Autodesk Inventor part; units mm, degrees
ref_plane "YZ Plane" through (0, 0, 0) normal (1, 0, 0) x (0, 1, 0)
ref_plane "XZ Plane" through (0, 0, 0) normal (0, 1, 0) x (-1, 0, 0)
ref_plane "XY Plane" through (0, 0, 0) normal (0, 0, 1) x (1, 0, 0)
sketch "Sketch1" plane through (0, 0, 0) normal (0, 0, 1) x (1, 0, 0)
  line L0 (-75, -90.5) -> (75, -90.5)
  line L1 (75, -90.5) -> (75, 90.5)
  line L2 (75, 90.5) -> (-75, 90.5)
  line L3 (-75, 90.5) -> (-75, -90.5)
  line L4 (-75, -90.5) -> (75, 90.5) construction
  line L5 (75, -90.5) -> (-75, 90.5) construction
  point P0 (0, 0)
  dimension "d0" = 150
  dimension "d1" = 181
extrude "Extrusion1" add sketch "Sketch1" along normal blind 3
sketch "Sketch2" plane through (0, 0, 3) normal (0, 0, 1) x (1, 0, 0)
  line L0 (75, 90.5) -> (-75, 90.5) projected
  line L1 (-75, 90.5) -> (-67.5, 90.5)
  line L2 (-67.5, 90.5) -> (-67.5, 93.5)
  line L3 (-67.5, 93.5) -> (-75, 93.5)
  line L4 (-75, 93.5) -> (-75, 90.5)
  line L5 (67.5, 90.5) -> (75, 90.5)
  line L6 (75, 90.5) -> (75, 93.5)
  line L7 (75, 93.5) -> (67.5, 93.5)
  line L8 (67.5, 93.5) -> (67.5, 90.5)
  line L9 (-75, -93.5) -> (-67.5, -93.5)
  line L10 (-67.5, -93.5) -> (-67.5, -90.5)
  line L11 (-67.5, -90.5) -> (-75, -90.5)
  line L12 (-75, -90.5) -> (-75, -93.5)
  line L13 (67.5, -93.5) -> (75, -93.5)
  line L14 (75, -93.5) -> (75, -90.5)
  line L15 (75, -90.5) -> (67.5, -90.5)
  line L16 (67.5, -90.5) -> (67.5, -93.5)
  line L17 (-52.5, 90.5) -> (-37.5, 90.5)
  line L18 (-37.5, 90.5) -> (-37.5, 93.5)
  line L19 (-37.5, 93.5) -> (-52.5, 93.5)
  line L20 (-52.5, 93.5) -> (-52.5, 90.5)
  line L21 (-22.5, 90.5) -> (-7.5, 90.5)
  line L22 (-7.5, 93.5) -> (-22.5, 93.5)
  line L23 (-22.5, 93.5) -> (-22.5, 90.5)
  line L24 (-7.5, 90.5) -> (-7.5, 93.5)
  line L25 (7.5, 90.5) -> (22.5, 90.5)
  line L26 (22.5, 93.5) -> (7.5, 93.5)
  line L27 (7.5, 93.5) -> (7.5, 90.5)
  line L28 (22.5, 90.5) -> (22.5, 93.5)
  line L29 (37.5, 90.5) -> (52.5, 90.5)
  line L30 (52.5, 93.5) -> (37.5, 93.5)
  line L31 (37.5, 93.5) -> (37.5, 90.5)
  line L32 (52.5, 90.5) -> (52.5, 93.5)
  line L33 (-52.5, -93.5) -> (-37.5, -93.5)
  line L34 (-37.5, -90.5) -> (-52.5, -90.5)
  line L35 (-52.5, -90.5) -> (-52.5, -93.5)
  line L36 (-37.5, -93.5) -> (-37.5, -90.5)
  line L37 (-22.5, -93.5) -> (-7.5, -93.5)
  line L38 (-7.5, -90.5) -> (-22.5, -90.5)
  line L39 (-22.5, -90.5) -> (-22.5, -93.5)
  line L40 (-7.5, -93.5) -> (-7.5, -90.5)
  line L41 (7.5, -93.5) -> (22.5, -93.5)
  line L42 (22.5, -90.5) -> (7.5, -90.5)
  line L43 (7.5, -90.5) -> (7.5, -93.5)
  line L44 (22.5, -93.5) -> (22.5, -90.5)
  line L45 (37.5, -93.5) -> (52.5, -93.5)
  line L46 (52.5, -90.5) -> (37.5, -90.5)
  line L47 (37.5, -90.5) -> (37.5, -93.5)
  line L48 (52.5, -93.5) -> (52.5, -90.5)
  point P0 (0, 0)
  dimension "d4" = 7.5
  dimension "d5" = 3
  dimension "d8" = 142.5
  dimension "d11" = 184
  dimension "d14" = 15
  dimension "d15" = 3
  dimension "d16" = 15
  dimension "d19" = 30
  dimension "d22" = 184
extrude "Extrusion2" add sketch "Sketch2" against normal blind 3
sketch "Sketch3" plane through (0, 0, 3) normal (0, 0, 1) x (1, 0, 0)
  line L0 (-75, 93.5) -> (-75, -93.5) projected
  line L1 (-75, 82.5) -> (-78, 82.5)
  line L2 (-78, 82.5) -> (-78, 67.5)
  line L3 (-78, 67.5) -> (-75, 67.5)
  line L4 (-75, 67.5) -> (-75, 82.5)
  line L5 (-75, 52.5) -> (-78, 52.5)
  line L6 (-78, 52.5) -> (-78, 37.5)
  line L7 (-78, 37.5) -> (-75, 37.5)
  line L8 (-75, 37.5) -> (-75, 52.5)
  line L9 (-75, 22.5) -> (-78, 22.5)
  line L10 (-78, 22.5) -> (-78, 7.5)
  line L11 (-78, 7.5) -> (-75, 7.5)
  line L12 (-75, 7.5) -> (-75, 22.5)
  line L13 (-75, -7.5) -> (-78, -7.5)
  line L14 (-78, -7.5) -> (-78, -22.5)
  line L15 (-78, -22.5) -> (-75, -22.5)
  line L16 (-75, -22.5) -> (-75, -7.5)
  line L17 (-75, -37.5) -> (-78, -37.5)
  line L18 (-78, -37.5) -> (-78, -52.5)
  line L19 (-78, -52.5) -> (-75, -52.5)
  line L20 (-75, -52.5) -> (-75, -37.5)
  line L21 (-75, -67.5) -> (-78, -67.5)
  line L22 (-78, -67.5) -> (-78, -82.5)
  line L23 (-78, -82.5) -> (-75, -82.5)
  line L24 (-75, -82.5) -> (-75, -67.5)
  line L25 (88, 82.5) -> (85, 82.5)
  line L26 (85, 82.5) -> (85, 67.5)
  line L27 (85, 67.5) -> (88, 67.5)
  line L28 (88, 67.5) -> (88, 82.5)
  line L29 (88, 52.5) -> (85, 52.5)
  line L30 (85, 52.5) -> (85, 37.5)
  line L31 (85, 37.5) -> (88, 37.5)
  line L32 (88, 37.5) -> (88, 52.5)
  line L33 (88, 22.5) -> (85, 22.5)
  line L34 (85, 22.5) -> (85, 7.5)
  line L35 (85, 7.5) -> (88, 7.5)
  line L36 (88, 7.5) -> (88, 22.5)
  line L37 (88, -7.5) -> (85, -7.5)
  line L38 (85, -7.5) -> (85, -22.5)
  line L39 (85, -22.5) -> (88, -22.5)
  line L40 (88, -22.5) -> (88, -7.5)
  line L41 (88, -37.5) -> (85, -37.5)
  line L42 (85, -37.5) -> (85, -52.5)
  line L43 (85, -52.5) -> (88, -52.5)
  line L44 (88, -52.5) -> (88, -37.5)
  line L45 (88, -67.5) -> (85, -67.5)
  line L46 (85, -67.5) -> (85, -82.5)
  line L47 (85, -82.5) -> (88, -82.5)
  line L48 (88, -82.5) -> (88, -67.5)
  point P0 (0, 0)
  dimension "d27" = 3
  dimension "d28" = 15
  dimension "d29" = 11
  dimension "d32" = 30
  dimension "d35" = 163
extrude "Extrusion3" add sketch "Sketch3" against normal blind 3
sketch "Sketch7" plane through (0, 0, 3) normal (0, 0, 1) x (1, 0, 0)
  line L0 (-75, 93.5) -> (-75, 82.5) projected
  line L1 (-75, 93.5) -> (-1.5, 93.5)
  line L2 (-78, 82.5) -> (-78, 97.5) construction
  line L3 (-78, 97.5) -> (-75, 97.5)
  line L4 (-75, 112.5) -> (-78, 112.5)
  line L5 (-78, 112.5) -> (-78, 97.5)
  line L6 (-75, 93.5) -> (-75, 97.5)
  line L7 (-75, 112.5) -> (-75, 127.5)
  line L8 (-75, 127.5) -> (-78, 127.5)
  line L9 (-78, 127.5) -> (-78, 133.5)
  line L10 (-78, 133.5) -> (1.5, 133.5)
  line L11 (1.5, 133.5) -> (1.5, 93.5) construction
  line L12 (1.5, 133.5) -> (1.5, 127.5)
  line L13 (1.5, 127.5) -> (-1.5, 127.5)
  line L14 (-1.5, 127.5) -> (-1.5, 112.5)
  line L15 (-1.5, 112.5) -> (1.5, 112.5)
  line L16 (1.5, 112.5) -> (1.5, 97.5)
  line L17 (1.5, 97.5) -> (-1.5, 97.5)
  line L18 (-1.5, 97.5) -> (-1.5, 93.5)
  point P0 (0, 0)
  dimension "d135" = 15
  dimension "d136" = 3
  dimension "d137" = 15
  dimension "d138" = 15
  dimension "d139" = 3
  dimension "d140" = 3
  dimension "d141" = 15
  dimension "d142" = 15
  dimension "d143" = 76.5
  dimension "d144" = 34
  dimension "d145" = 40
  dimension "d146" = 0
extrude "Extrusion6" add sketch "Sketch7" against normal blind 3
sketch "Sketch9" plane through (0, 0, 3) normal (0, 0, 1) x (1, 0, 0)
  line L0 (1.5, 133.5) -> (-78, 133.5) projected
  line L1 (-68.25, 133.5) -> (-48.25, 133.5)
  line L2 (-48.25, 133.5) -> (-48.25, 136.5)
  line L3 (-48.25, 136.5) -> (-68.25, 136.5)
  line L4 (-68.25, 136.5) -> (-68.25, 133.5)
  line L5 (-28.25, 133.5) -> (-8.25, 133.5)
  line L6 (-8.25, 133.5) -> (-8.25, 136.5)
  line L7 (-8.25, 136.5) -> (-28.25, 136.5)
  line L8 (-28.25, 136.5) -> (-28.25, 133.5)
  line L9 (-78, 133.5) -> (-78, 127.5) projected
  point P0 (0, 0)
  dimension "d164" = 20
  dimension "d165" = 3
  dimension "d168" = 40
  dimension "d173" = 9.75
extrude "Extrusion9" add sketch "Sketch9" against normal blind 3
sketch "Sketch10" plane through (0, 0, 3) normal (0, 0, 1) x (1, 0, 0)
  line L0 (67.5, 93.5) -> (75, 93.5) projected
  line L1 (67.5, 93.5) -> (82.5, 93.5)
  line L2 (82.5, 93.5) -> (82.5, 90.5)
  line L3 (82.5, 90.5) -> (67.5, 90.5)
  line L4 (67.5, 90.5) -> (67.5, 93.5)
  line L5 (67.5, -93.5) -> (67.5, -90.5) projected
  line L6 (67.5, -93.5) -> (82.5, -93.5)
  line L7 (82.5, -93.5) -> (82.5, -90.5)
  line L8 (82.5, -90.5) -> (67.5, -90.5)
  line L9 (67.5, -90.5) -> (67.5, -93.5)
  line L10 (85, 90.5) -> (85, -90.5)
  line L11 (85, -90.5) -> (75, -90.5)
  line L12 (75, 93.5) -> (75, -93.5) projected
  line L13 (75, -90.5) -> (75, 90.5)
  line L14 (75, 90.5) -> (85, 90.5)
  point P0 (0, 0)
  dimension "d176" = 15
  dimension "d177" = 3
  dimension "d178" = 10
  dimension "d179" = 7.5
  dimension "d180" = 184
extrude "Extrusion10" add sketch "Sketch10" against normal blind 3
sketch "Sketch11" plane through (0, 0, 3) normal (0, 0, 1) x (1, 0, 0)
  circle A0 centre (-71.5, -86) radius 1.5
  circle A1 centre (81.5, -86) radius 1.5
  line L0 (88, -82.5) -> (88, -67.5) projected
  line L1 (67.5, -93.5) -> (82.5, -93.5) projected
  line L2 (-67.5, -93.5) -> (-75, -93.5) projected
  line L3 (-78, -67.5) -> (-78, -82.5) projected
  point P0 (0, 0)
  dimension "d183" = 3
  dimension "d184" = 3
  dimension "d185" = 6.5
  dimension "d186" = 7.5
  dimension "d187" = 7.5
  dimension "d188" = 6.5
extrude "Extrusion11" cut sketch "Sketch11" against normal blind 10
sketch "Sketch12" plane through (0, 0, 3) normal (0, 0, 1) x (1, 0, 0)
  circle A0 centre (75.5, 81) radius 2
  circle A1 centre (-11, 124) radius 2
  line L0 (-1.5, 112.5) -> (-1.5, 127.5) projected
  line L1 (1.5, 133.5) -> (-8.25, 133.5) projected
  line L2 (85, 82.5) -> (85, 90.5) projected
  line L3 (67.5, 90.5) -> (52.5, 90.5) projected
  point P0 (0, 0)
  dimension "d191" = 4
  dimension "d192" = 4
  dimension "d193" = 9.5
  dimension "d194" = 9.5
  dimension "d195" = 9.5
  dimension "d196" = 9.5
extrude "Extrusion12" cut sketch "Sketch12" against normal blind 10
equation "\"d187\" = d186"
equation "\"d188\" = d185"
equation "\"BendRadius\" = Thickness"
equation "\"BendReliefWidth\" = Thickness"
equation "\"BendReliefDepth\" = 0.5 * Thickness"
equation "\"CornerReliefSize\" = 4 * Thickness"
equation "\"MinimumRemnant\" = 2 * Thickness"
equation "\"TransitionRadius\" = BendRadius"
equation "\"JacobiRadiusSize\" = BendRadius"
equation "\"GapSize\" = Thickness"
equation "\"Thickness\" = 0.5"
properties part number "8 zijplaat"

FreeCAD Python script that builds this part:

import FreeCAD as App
import Part
import Sketcher
from FreeCAD import Vector

doc = App.newDocument("Part")
body = doc.addObject("PartDesign::Body", "Body")
body.AllowCompound = True

sketch1 = body.newObject("Sketcher::SketchObject", "Sketch")
sketch1.AttachmentSupport = (doc.getObject("XY_Plane"), [""])
sketch1.MapMode = "FlatFace"
sketch1.addGeometry([
    Part.LineSegment(Vector(-75, 90.5, 0), Vector(-75, -90.5, 0)),
    Part.LineSegment(Vector(-75, -90.5, 0), Vector(75, -90.5, 0)),
    Part.LineSegment(Vector(75, -90.5, 0), Vector(75, 90.5, 0)),
    Part.LineSegment(Vector(75, 90.5, 0), Vector(-75, 90.5, 0)),
], False)
sketch1.addConstraint([
    Sketcher.Constraint("Coincident", 0, 2, 1, 1),
    Sketcher.Constraint("Coincident", 1, 2, 2, 1),
    Sketcher.Constraint("Coincident", 2, 2, 3, 1),
    Sketcher.Constraint("Coincident", 3, 2, 0, 1),
    Sketcher.Constraint("Vertical", 0),
    Sketcher.Constraint("Horizontal", 1),
    Sketcher.Constraint("Vertical", 2),
    Sketcher.Constraint("Horizontal", 3),
    Sketcher.Constraint("Symmetric", 0, 2, 2, 2, -1, 1),
    Sketcher.Constraint("DistanceX", 1, 1, 1, 2, 150.0),
    Sketcher.Constraint("DistanceY", 0, 2, 0, 1, 181.0),
])
pad1 = body.newObject("PartDesign::Pad", "Pad")
pad1.Profile = sketch1
pad1.Length = 3

sketch2 = body.newObject("Sketcher::SketchObject", "Sketch001")
sketch2.AttachmentSupport = (doc.getObject("XY_Plane"), [""])
sketch2.MapMode = "FlatFace"
sketch2.AttachmentOffset = App.Placement(Vector(0, 0, 3), App.Rotation())
sketch2.addGeometry([
    Part.LineSegment(Vector(-75, 90.5, 0), Vector(-67.5, 90.5, 0)),
    Part.LineSegment(Vector(-67.5, 90.5, 0), Vector(-67.5, 93.5, 0)),
    Part.LineSegment(Vector(-67.5, 93.5, 0), Vector(-75, 93.5, 0)),
    Part.LineSegment(Vector(-75, 93.5, 0), Vector(-75, 90.5, 0)),
    Part.LineSegment(Vector(-52.5, 90.5, 0), Vector(-37.5, 90.5, 0)),
    Part.LineSegment(Vector(-37.5, 90.5, 0), Vector(-37.5, 93.5, 0)),
    Part.LineSegment(Vector(-37.5, 93.5, 0), Vector(-52.5, 93.5, 0)),
    Part.LineSegment(Vector(-52.5, 93.5, 0), Vector(-52.5, 90.5, 0)),
    Part.LineSegment(Vector(-22.5, 90.5, 0), Vector(-7.5, 90.5, 0)),
    Part.LineSegment(Vector(-7.5, 90.5, 0), Vector(-7.5, 93.5, 0)),
    Part.LineSegment(Vector(-7.5, 93.5, 0), Vector(-22.5, 93.5, 0)),
    Part.LineSegment(Vector(-22.5, 93.5, 0), Vector(-22.5, 90.5, 0)),
    Part.LineSegment(Vector(7.5, 90.5, 0), Vector(22.5, 90.5, 0)),
    Part.LineSegment(Vector(22.5, 90.5, 0), Vector(22.5, 93.5, 0)),
    Part.LineSegment(Vector(22.5, 93.5, 0), Vector(7.5, 93.5, 0)),
    Part.LineSegment(Vector(7.5, 93.5, 0), Vector(7.5, 90.5, 0)),
    Part.LineSegment(Vector(37.5, 90.5, 0), Vector(52.5, 90.5, 0)),
    Part.LineSegment(Vector(52.5, 90.5, 0), Vector(52.5, 93.5, 0)),
    Part.LineSegment(Vector(52.5, 93.5, 0), Vector(37.5, 93.5, 0)),
    Part.LineSegment(Vector(37.5, 93.5, 0), Vector(37.5, 90.5, 0)),
    Part.LineSegment(Vector(67.5, 90.5, 0), Vector(75, 90.5, 0)),
    Part.LineSegment(Vector(75, 90.5, 0), Vector(75, 93.5, 0)),
    Part.LineSegment(Vector(75, 93.5, 0), Vector(67.5, 93.5, 0)),
    Part.LineSegment(Vector(67.5, 93.5, 0), Vector(67.5, 90.5, 0)),
    Part.LineSegment(Vector(-75, -90.5, 0), Vector(-75, -93.5, 0)),
    Part.LineSegment(Vector(-75, -93.5, 0), Vector(-67.5, -93.5, 0)),
    Part.LineSegment(Vector(-67.5, -93.5, 0), Vector(-67.5, -90.5, 0)),
    Part.LineSegment(Vector(-67.5, -90.5, 0), Vector(-75, -90.5, 0)),
    Part.LineSegment(Vector(67.5, -90.5, 0), Vector(67.5, -93.5, 0)),
    Part.LineSegment(Vector(67.5, -93.5, 0), Vector(75, -93.5, 0)),
    Part.LineSegment(Vector(75, -93.5, 0), Vector(75, -90.5, 0)),
    Part.LineSegment(Vector(75, -90.5, 0), Vector(67.5, -90.5, 0)),
    Part.LineSegment(Vector(-52.5, -90.5, 0), Vector(-52.5, -93.5, 0)),
    Part.LineSegment(Vector(-52.5, -93.5, 0), Vector(-37.5, -93.5, 0)),
    Part.LineSegment(Vector(-37.5, -93.5, 0), Vector(-37.5, -90.5, 0)),
    Part.LineSegment(Vector(-37.5, -90.5, 0), Vector(-52.5, -90.5, 0)),
    Part.LineSegment(Vector(-22.5, -90.5, 0), Vector(-22.5, -93.5, 0)),
    Part.LineSegment(Vector(-22.5, -93.5, 0), Vector(-7.5, -93.5, 0)),
    Part.LineSegment(Vector(-7.5, -93.5, 0), Vector(-7.5, -90.5, 0)),
    Part.LineSegment(Vector(-7.5, -90.5, 0), Vector(-22.5, -90.5, 0)),
    Part.LineSegment(Vector(7.5, -90.5, 0), Vector(7.5, -93.5, 0)),
    Part.LineSegment(Vector(7.5, -93.5, 0), Vector(22.5, -93.5, 0)),
    Part.LineSegment(Vector(22.5, -93.5, 0), Vector(22.5, -90.5, 0)),
    Part.LineSegment(Vector(22.5, -90.5, 0), Vector(7.5, -90.5, 0)),
    Part.LineSegment(Vector(37.5, -90.5, 0), Vector(37.5, -93.5, 0)),
    Part.LineSegment(Vector(37.5, -93.5, 0), Vector(52.5, -93.5, 0)),
    Part.LineSegment(Vector(52.5, -93.5, 0), Vector(52.5, -90.5, 0)),
    Part.LineSegment(Vector(52.5, -90.5, 0), Vector(37.5, -90.5, 0)),
], False)
sketch2.addConstraint([
    Sketcher.Constraint("Coincident", 0, 2, 1, 1),
    Sketcher.Constraint("Coincident", 1, 2, 2, 1),
    Sketcher.Constraint("Coincident", 2, 2, 3, 1),
    Sketcher.Constraint("Coincident", 3, 2, 0, 1),
    Sketcher.Constraint("Coincident", 4, 2, 5, 1),
    Sketcher.Constraint("Coincident", 5, 2, 6, 1),
    Sketcher.Constraint("Coincident", 6, 2, 7, 1),
    Sketcher.Constraint("Coincident", 7, 2, 4, 1),
    Sketcher.Constraint("Coincident", 8, 2, 9, 1),
    Sketcher.Constraint("Coincident", 9, 2, 10, 1),
    Sketcher.Constraint("Coincident", 10, 2, 11, 1),
    Sketcher.Constraint("Coincident", 11, 2, 8, 1),
    Sketcher.Constraint("Coincident", 12, 2, 13, 1),
    Sketcher.Constraint("Coincident", 13, 2, 14, 1),
    Sketcher.Constraint("Coincident", 14, 2, 15, 1),
    Sketcher.Constraint("Coincident", 15, 2, 12, 1),
    Sketcher.Constraint("Coincident", 16, 2, 17, 1),
    Sketcher.Constraint("Coincident", 17, 2, 18, 1),
    Sketcher.Constraint("Coincident", 18, 2, 19, 1),
    Sketcher.Constraint("Coincident", 19, 2, 16, 1),
    Sketcher.Constraint("Coincident", 20, 2, 21, 1),
    Sketcher.Constraint("Coincident", 21, 2, 22, 1),
    Sketcher.Constraint("Coincident", 22, 2, 23, 1),
    Sketcher.Constraint("Coincident", 23, 2, 20, 1),
    Sketcher.Constraint("Coincident", 24, 2, 25, 1),
    Sketcher.Constraint("Coincident", 25, 2, 26, 1),
    Sketcher.Constraint("Coincident", 26, 2, 27, 1),
    Sketcher.Constraint("Coincident", 27, 2, 24, 1),
    Sketcher.Constraint("Coincident", 28, 2, 29, 1),
    Sketcher.Constraint("Coincident", 29, 2, 30, 1),
    Sketcher.Constraint("Coincident", 30, 2, 31, 1),
    Sketcher.Constraint("Coincident", 31, 2, 28, 1),
    Sketcher.Constraint("Coincident", 32, 2, 33, 1),
    Sketcher.Constraint("Coincident", 33, 2, 34, 1),
    Sketcher.Constraint("Coincident", 34, 2, 35, 1),
    Sketcher.Constraint("Coincident", 35, 2, 32, 1),
    Sketcher.Constraint("Coincident", 36, 2, 37, 1),
    Sketcher.Constraint("Coincident", 37, 2, 38, 1),
    Sketcher.Constraint("Coincident", 38, 2, 39, 1),
    Sketcher.Constraint("Coincident", 39, 2, 36, 1),
    Sketcher.Constraint("Coincident", 40, 2, 41, 1),
    Sketcher.Constraint("Coincident", 41, 2, 42, 1),
    Sketcher.Constraint("Coincident", 42, 2, 43, 1),
    Sketcher.Constraint("Coincident", 43, 2, 40, 1),
    Sketcher.Constraint("Coincident", 44, 2, 45, 1),
    Sketcher.Constraint("Coincident", 45, 2, 46, 1),
    Sketcher.Constraint("Coincident", 46, 2, 47, 1),
    Sketcher.Constraint("Coincident", 47, 2, 44, 1),
    Sketcher.Constraint("Horizontal", 0),
    Sketcher.Constraint("Vertical", 1),
    Sketcher.Constraint("Horizontal", 2),
    Sketcher.Constraint("Vertical", 3),
    Sketcher.Constraint("Horizontal", 4),
    Sketcher.Constraint("Vertical", 5),
    Sketcher.Constraint("Horizontal", 6),
    Sketcher.Constraint("Vertical", 7),
    Sketcher.Constraint("Horizontal", 8),
    Sketcher.Constraint("Vertical", 9),
    Sketcher.Constraint("Horizontal", 10),
    Sketcher.Constraint("Vertical", 11),
    Sketcher.Constraint("Horizontal", 12),
    Sketcher.Constraint("Vertical", 13),
    Sketcher.Constraint("Horizontal", 14),
    Sketcher.Constraint("Vertical", 15),
    Sketcher.Constraint("Horizontal", 16),
    Sketcher.Constraint("Vertical", 17),
    Sketcher.Constraint("Horizontal", 18),
    Sketcher.Constraint("Vertical", 19),
    Sketcher.Constraint("Horizontal", 20),
    Sketcher.Constraint("Vertical", 21),
    Sketcher.Constraint("Horizontal", 22),
    Sketcher.Constraint("Vertical", 23),
    Sketcher.Constraint("Vertical", 24),
    Sketcher.Constraint("Horizontal", 25),
    Sketcher.Constraint("Vertical", 26),
    Sketcher.Constraint("Horizontal", 27),
    Sketcher.Constraint("Vertical", 28),
    Sketcher.Constraint("Horizontal", 29),
    Sketcher.Constraint("Vertical", 30),
    Sketcher.Constraint("Horizontal", 31),
    Sketcher.Constraint("Vertical", 32),
    Sketcher.Constraint("Horizontal", 33),
    Sketcher.Constraint("Vertical", 34),
    Sketcher.Constraint("Horizontal", 35),
    Sketcher.Constraint("Vertical", 36),
    Sketcher.Constraint("Horizontal", 37),
    Sketcher.Constraint("Vertical", 38),
    Sketcher.Constraint("Horizontal", 39),
    Sketcher.Constraint("Vertical", 40),
    Sketcher.Constraint("Horizontal", 41),
    Sketcher.Constraint("Vertical", 42),
    Sketcher.Constraint("Horizontal", 43),
    Sketcher.Constraint("Vertical", 44),
    Sketcher.Constraint("Horizontal", 45),
    Sketcher.Constraint("Vertical", 46),
    Sketcher.Constraint("Horizontal", 47),
    Sketcher.Constraint("Symmetric", 21, 2, 24, 2, -1, 1),
    Sketcher.Constraint("Symmetric", 23, 2, 26, 2, -1, 1),
    Sketcher.Constraint("Symmetric", 1, 2, 28, 2, -1, 1),
    Sketcher.Constraint("Symmetric", 3, 2, 30, 2, -1, 1),
    Sketcher.Constraint("Symmetric", 17, 2, 32, 2, -1, 1),
    Sketcher.Constraint("Symmetric", 19, 2, 34, 2, -1, 1),
    Sketcher.Constraint("Symmetric", 13, 2, 36, 2, -1, 1),
    Sketcher.Constraint("Symmetric", 15, 2, 38, 2, -1, 1),
    Sketcher.Constraint("Symmetric", 9, 2, 40, 2, -1, 1),
    Sketcher.Constraint("Symmetric", 11, 2, 42, 2, -1, 1),
    Sketcher.Constraint("Symmetric", 5, 2, 44, 2, -1, 1),
    Sketcher.Constraint("Symmetric", 7, 2, 46, 2, -1, 1),
    Sketcher.Constraint("Symmetric", 11, 2, 12, 2, -2),
    Sketcher.Constraint("Symmetric", 9, 2, 14, 2, -2),
    Sketcher.Constraint("Symmetric", 7, 2, 16, 2, -2),
    Sketcher.Constraint("Symmetric", 5, 2, 18, 2, -2),
    Sketcher.Constraint("Symmetric", 3, 2, 20, 2, -2),
    Sketcher.Constraint("Symmetric", 1, 2, 22, 2, -2),
    Sketcher.Constraint("Horizontal", 3, 2, 4, 2),
    Sketcher.Constraint("Horizontal", 2, 2, 5, 2),
    Sketcher.Constraint("Horizontal", 7, 2, 8, 2),
    Sketcher.Constraint("Horizontal", 6, 2, 9, 2),
    Sketcher.Constraint("Equal", 6, 8),
    Sketcher.Constraint("DistanceX", 4, 1, 4, 2, 15.0),
    Sketcher.Constraint("DistanceY", 1, 1, 1, 2, 3.0),
    Sketcher.Constraint("DistanceX", 0, 1, 0, 2, 7.5),
    Sketcher.Constraint("DistanceX", 0, 2, 4, 2, 30.0),
    Sketcher.Constraint("DistanceX", 4, 2, 8, 2, 30.0),
    Sketcher.Constraint("DistanceX", 8, 2, 12, 2, 30.0),
    Sketcher.Constraint("DistanceY", 24, 2, 3, 2, 184.0),
])
pad2 = body.newObject("PartDesign::Pad", "Pad001")
pad2.Profile = sketch2
pad2.Length = 3
pad2.Reversed = True

sketch3 = body.newObject("Sketcher::SketchObject", "Sketch002")
sketch3.AttachmentSupport = (doc.getObject("XY_Plane"), [""])
sketch3.MapMode = "FlatFace"
sketch3.AttachmentOffset = App.Placement(Vector(0, 0, 3), App.Rotation())
sketch3.addGeometry([
    Part.LineSegment(Vector(-75, -82.5, 0), Vector(-75, -67.5, 0)),
    Part.LineSegment(Vector(-75, -67.5, 0), Vector(-78, -67.5, 0)),
    Part.LineSegment(Vector(-78, -67.5, 0), Vector(-78, -82.5, 0)),
    Part.LineSegment(Vector(-78, -82.5, 0), Vector(-75, -82.5, 0)),
    Part.LineSegment(Vector(-75, -52.5, 0), Vector(-75, -37.5, 0)),
    Part.LineSegment(Vector(-75, -37.5, 0), Vector(-78, -37.5, 0)),
    Part.LineSegment(Vector(-78, -37.5, 0), Vector(-78, -52.5, 0)),
    Part.LineSegment(Vector(-78, -52.5, 0), Vector(-75, -52.5, 0)),
    Part.LineSegment(Vector(-75, -22.5, 0), Vector(-75, -7.5, 0)),
    Part.LineSegment(Vector(-75, -7.5, 0), Vector(-78, -7.5, 0)),
    Part.LineSegment(Vector(-78, -7.5, 0), Vector(-78, -22.5, 0)),
    Part.LineSegment(Vector(-78, -22.5, 0), Vector(-75, -22.5, 0)),
    Part.LineSegment(Vector(-75, 7.5, 0), Vector(-75, 22.5, 0)),
    Part.LineSegment(Vector(-75, 22.5, 0), Vector(-78, 22.5, 0)),
    Part.LineSegment(Vector(-78, 22.5, 0), Vector(-78, 7.5, 0)),
    Part.LineSegment(Vector(-78, 7.5, 0), Vector(-75, 7.5, 0)),
    Part.LineSegment(Vector(-75, 37.5, 0), Vector(-75, 52.5, 0)),
    Part.LineSegment(Vector(-75, 52.5, 0), Vector(-78, 52.5, 0)),
    Part.LineSegment(Vector(-78, 52.5, 0), Vector(-78, 37.5, 0)),
    Part.LineSegment(Vector(-78, 37.5, 0), Vector(-75, 37.5, 0)),
    Part.LineSegment(Vector(-75, 67.5, 0), Vector(-75, 82.5, 0)),
    Part.LineSegment(Vector(-75, 82.5, 0), Vector(-78, 82.5, 0)),
    Part.LineSegment(Vector(-78, 82.5, 0), Vector(-78, 67.5, 0)),
    Part.LineSegment(Vector(-78, 67.5, 0), Vector(-75, 67.5, 0)),
    Part.LineSegment(Vector(88, 67.5, 0), Vector(88, 82.5, 0)),
    Part.LineSegment(Vector(88, 82.5, 0), Vector(85, 82.5, 0)),
    Part.LineSegment(Vector(85, 82.5, 0), Vector(85, 67.5, 0)),
    Part.LineSegment(Vector(85, 67.5, 0), Vector(88, 67.5, 0)),
    Part.LineSegment(Vector(88, 37.5, 0), Vector(88, 52.5, 0)),
    Part.LineSegment(Vector(88, 52.5, 0), Vector(85, 52.5, 0)),
    Part.LineSegment(Vector(85, 52.5, 0), Vector(85, 37.5, 0)),
    Part.LineSegment(Vector(85, 37.5, 0), Vector(88, 37.5, 0)),
    Part.LineSegment(Vector(88, 7.5, 0), Vector(88, 22.5, 0)),
    Part.LineSegment(Vector(88, 22.5, 0), Vector(85, 22.5, 0)),
    Part.LineSegment(Vector(85, 22.5, 0), Vector(85, 7.5, 0)),
    Part.LineSegment(Vector(85, 7.5, 0), Vector(88, 7.5, 0)),
    Part.LineSegment(Vector(88, -22.5, 0), Vector(88, -7.5, 0)),
    Part.LineSegment(Vector(88, -7.5, 0), Vector(85, -7.5, 0)),
    Part.LineSegment(Vector(85, -7.5, 0), Vector(85, -22.5, 0)),
    Part.LineSegment(Vector(85, -22.5, 0), Vector(88, -22.5, 0)),
    Part.LineSegment(Vector(88, -52.5, 0), Vector(88, -37.5, 0)),
    Part.LineSegment(Vector(88, -37.5, 0), Vector(85, -37.5, 0)),
    Part.LineSegment(Vector(85, -37.5, 0), Vector(85, -52.5, 0)),
    Part.LineSegment(Vector(85, -52.5, 0), Vector(88, -52.5, 0)),
    Part.LineSegment(Vector(88, -82.5, 0), Vector(88, -67.5, 0)),
    Part.LineSegment(Vector(88, -67.5, 0), Vector(85, -67.5, 0)),
    Part.LineSegment(Vector(85, -67.5, 0), Vector(85, -82.5, 0)),
    Part.LineSegment(Vector(85, -82.5, 0), Vector(88, -82.5, 0)),
], False)
sketch3.addConstraint([
    Sketcher.Constraint("Coincident", 0, 2, 1, 1),
    Sketcher.Constraint("Coincident", 1, 2, 2, 1),
    Sketcher.Constraint("Coincident", 2, 2, 3, 1),
    Sketcher.Constraint("Coincident", 3, 2, 0, 1),
    Sketcher.Constraint("Coincident", 4, 2, 5, 1),
    Sketcher.Constraint("Coincident", 5, 2, 6, 1),
    Sketcher.Constraint("Coincident", 6, 2, 7, 1),
    Sketcher.Constraint("Coincident", 7, 2, 4, 1),
    Sketcher.Constraint("Coincident", 8, 2, 9, 1),
    Sketcher.Constraint("Coincident", 9, 2, 10, 1),
    Sketcher.Constraint("Coincident", 10, 2, 11, 1),
    Sketcher.Constraint("Coincident", 11, 2, 8, 1),
    Sketcher.Constraint("Coincident", 12, 2, 13, 1),
    Sketcher.Constraint("Coincident", 13, 2, 14, 1),
    Sketcher.Constraint("Coincident", 14, 2, 15, 1),
    Sketcher.Constraint("Coincident", 15, 2, 12, 1),
    Sketcher.Constraint("Coincident", 16, 2, 17, 1),
    Sketcher.Constraint("Coincident", 17, 2, 18, 1),
    Sketcher.Constraint("Coincident", 18, 2, 19, 1),
    Sketcher.Constraint("Coincident", 19, 2, 16, 1),
    Sketcher.Constraint("Coincident", 20, 2, 21, 1),
    Sketcher.Constraint("Coincident", 21, 2, 22, 1),
    Sketcher.Constraint("Coincident", 22, 2, 23, 1),
    Sketcher.Constraint("Coincident", 23, 2, 20, 1),
    Sketcher.Constraint("Coincident", 24, 2, 25, 1),
    Sketcher.Constraint("Coincident", 25, 2, 26, 1),
    Sketcher.Constraint("Coincident", 26, 2, 27, 1),
    Sketcher.Constraint("Coincident", 27, 2, 24, 1),
    Sketcher.Constraint("Coincident", 28, 2, 29, 1),
    Sketcher.Constraint("Coincident", 29, 2, 30, 1),
    Sketcher.Constraint("Coincident", 30, 2, 31, 1),
    Sketcher.Constraint("Coincident", 31, 2, 28, 1),
    Sketcher.Constraint("Coincident", 32, 2, 33, 1),
    Sketcher.Constraint("Coincident", 33, 2, 34, 1),
    Sketcher.Constraint("Coincident", 34, 2, 35, 1),
    Sketcher.Constraint("Coincident", 35, 2, 32, 1),
    Sketcher.Constraint("Coincident", 36, 2, 37, 1),
    Sketcher.Constraint("Coincident", 37, 2, 38, 1),
    Sketcher.Constraint("Coincident", 38, 2, 39, 1),
    Sketcher.Constraint("Coincident", 39, 2, 36, 1),
    Sketcher.Constraint("Coincident", 40, 2, 41, 1),
    Sketcher.Constraint("Coincident", 41, 2, 42, 1),
    Sketcher.Constraint("Coincident", 42, 2, 43, 1),
    Sketcher.Constraint("Coincident", 43, 2, 40, 1),
    Sketcher.Constraint("Coincident", 44, 2, 45, 1),
    Sketcher.Constraint("Coincident", 45, 2, 46, 1),
    Sketcher.Constraint("Coincident", 46, 2, 47, 1),
    Sketcher.Constraint("Coincident", 47, 2, 44, 1),
    Sketcher.Constraint("Vertical", 0),
    Sketcher.Constraint("Horizontal", 1),
    Sketcher.Constraint("Vertical", 2),
    Sketcher.Constraint("Horizontal", 3),
    Sketcher.Constraint("Vertical", 4),
    Sketcher.Constraint("Horizontal", 5),
    Sketcher.Constraint("Vertical", 6),
    Sketcher.Constraint("Horizontal", 7),
    Sketcher.Constraint("Vertical", 8),
    Sketcher.Constraint("Horizontal", 9),
    Sketcher.Constraint("Vertical", 10),
    Sketcher.Constraint("Horizontal", 11),
    Sketcher.Constraint("Vertical", 12),
    Sketcher.Constraint("Horizontal", 13),
    Sketcher.Constraint("Vertical", 14),
    Sketcher.Constraint("Horizontal", 15),
    Sketcher.Constraint("Vertical", 16),
    Sketcher.Constraint("Horizontal", 17),
    Sketcher.Constraint("Vertical", 18),
    Sketcher.Constraint("Horizontal", 19),
    Sketcher.Constraint("Vertical", 20),
    Sketcher.Constraint("Horizontal", 21),
    Sketcher.Constraint("Vertical", 22),
    Sketcher.Constraint("Horizontal", 23),
    Sketcher.Constraint("Vertical", 24),
    Sketcher.Constraint("Horizontal", 25),
    Sketcher.Constraint("Vertical", 26),
    Sketcher.Constraint("Horizontal", 27),
    Sketcher.Constraint("Vertical", 28),
    Sketcher.Constraint("Horizontal", 29),
    Sketcher.Constraint("Vertical", 30),
    Sketcher.Constraint("Horizontal", 31),
    Sketcher.Constraint("Vertical", 32),
    Sketcher.Constraint("Horizontal", 33),
    Sketcher.Constraint("Vertical", 34),
    Sketcher.Constraint("Horizontal", 35),
    Sketcher.Constraint("Vertical", 36),
    Sketcher.Constraint("Horizontal", 37),
    Sketcher.Constraint("Vertical", 38),
    Sketcher.Constraint("Horizontal", 39),
    Sketcher.Constraint("Vertical", 40),
    Sketcher.Constraint("Horizontal", 41),
    Sketcher.Constraint("Vertical", 42),
    Sketcher.Constraint("Horizontal", 43),
    Sketcher.Constraint("Vertical", 44),
    Sketcher.Constraint("Horizontal", 45),
    Sketcher.Constraint("Vertical", 46),
    Sketcher.Constraint("Horizontal", 47),
    Sketcher.Constraint("Symmetric", 11, 2, 12, 2, -1),
    Sketcher.Constraint("Symmetric", 9, 2, 14, 2, -1),
    Sketcher.Constraint("Symmetric", 7, 2, 16, 2, -1),
    Sketcher.Constraint("Symmetric", 5, 2, 18, 2, -1),
    Sketcher.Constraint("Symmetric", 3, 2, 20, 2, -1),
    Sketcher.Constraint("Symmetric", 1, 2, 22, 2, -1),
    Sketcher.Constraint("Symmetric", 35, 2, 36, 2, -1),
    Sketcher.Constraint("Symmetric", 33, 2, 38, 2, -1),
    Sketcher.Constraint("Symmetric", 31, 2, 40, 2, -1),
    Sketcher.Constraint("Symmetric", 29, 2, 42, 2, -1),
    Sketcher.Constraint("Symmetric", 27, 2, 44, 2, -1),
    Sketcher.Constraint("Symmetric", 25, 2, 46, 2, -1),
    Sketcher.Constraint("Horizontal", 21, 2, 24, 2),
    Sketcher.Constraint("Horizontal", 23, 2, 26, 2),
    Sketcher.Constraint("Horizontal", 17, 2, 28, 2),
    Sketcher.Constraint("Horizontal", 19, 2, 30, 2),
    Sketcher.Constraint("Horizontal", 13, 2, 32, 2),
    Sketcher.Constraint("Horizontal", 15, 2, 34, 2),
    Sketcher.Constraint("Vertical", 3, 2, 4, 2),
    Sketcher.Constraint("Vertical", 2, 2, 5, 2),
    Sketcher.Constraint("Vertical", 7, 2, 8, 2),
    Sketcher.Constraint("Vertical", 6, 2, 9, 2),
    Sketcher.Constraint("Vertical", 27, 2, 28, 2),
    Sketcher.Constraint("Vertical", 26, 2, 29, 2),
    Sketcher.Constraint("Vertical", 31, 2, 32, 2),
    Sketcher.Constraint("Vertical", 30, 2, 33, 2),
    Sketcher.Constraint("Equal", 23, 25),
    Sketcher.Constraint("Equal", 2, 4),
    Sketcher.Constraint("Equal", 6, 8),
    Sketcher.Constraint("DistanceX", 1, 2, 1, 1, 3.0),
    Sketcher.Constraint("DistanceY", 0, 1, 0, 2, 15.0),
    Sketcher.Constraint("DistanceY", 0, 2, 4, 2, 30.0),
    Sketcher.Constraint("DistanceY", 4, 2, 8, 2, 30.0),
    Sketcher.Constraint("DistanceY", 8, 2, 12, 2, 30.0),
    Sketcher.Constraint("DistanceX", 20, 2, 24, 2, 163.0),
    Sketcher.Constraint("DistanceX", 0, 2, -1, 1, 75.0),
])
pad3 = body.newObject("PartDesign::Pad", "Pad002")
pad3.Profile = sketch3
pad3.Length = 3
pad3.Reversed = True

sketch4 = body.newObject("Sketcher::SketchObject", "Sketch003")
sketch4.AttachmentSupport = (doc.getObject("XY_Plane"), [""])
sketch4.MapMode = "FlatFace"
sketch4.AttachmentOffset = App.Placement(Vector(0, 0, 3), App.Rotation())
sketch4.addGeometry([
    Part.LineSegment(Vector(-75, 97.5, 0), Vector(-75, 93.5, 0)),
    Part.LineSegment(Vector(-75, 93.5, 0), Vector(-1.5, 93.5, 0)),
    Part.LineSegment(Vector(-1.5, 93.5, 0), Vector(-1.5, 97.5, 0)),
    Part.LineSegment(Vector(-1.5, 97.5, 0), Vector(1.5, 97.5, 0)),
    Part.LineSegment(Vector(1.5, 97.5, 0), Vector(1.5, 112.5, 0)),
    Part.LineSegment(Vector(1.5, 112.5, 0), Vector(-1.5, 112.5, 0)),
    Part.LineSegment(Vector(-1.5, 112.5, 0), Vector(-1.5, 127.5, 0)),
    Part.LineSegment(Vector(-1.5, 127.5, 0), Vector(1.5, 127.5, 0)),
    Part.LineSegment(Vector(1.5, 127.5, 0), Vector(1.5, 133.5, 0)),
    Part.LineSegment(Vector(1.5, 133.5, 0), Vector(-78, 133.5, 0)),
    Part.LineSegment(Vector(-78, 133.5, 0), Vector(-78, 127.5, 0)),
    Part.LineSegment(Vector(-78, 127.5, 0), Vector(-75, 127.5, 0)),
    Part.LineSegment(Vector(-75, 127.5, 0), Vector(-75, 112.5, 0)),
    Part.LineSegment(Vector(-75, 112.5, 0), Vector(-78, 112.5, 0)),
    Part.LineSegment(Vector(-78, 112.5, 0), Vector(-78, 97.5, 0)),
    Part.LineSegment(Vector(-78, 97.5, 0), Vector(-75, 97.5, 0)),
], False)
sketch4.addConstraint([
    Sketcher.Constraint("Coincident", 0, 2, 1, 1),
    Sketcher.Constraint("Coincident", 1, 2, 2, 1),
    Sketcher.Constraint("Coincident", 2, 2, 3, 1),
    Sketcher.Constraint("Coincident", 3, 2, 4, 1),
    Sketcher.Constraint("Coincident", 4, 2, 5, 1),
    Sketcher.Constraint("Coincident", 5, 2, 6, 1),
    Sketcher.Constraint("Coincident", 6, 2, 7, 1),
    Sketcher.Constraint("Coincident", 7, 2, 8, 1),
    Sketcher.Constraint("Coincident", 8, 2, 9, 1),
    Sketcher.Constraint("Coincident", 9, 2, 10, 1),
    Sketcher.Constraint("Coincident", 10, 2, 11, 1),
    Sketcher.Constraint("Coincident", 11, 2, 12, 1),
    Sketcher.Constraint("Coincident", 12, 2, 13, 1),
    Sketcher.Constraint("Coincident", 13, 2, 14, 1),
    Sketcher.Constraint("Coincident", 14, 2, 15, 1),
    Sketcher.Constraint("Coincident", 15, 2, 0, 1),
    Sketcher.Constraint("Vertical", 0),
    Sketcher.Constraint("Horizontal", 1),
    Sketcher.Constraint("Vertical", 2),
    Sketcher.Constraint("Horizontal", 3),
    Sketcher.Constraint("Vertical", 4),
    Sketcher.Constraint("Horizontal", 5),
    Sketcher.Constraint("Vertical", 6),
    Sketcher.Constraint("Horizontal", 7),
    Sketcher.Constraint("Vertical", 8),
    Sketcher.Constraint("Horizontal", 9),
    Sketcher.Constraint("Vertical", 10),
    Sketcher.Constraint("Horizontal", 11),
    Sketcher.Constraint("Vertical", 12),
    Sketcher.Constraint("Horizontal", 13),
    Sketcher.Constraint("Vertical", 14),
    Sketcher.Constraint("Horizontal", 15),
    Sketcher.Constraint("Horizontal", 7, 2, 10, 2),
    Sketcher.Constraint("Horizontal", 5, 2, 12, 2),
    Sketcher.Constraint("Horizontal", 3, 2, 14, 2),
    Sketcher.Constraint("Vertical", 2, 2, 5, 2),
    Sketcher.Constraint("Vertical", 4, 2, 7, 2),
    Sketcher.Constraint("Vertical", 0, 2, 11, 2),
    Sketcher.Constraint("Vertical", 10, 2, 13, 2),
    Sketcher.Constraint("Equal", 7, 11),
    Sketcher.Constraint("Equal", 4, 6),
    Sketcher.Constraint("DistanceX", 3, 1, 3, 2, 3.0),
    Sketcher.Constraint("DistanceY", 4, 1, 4, 2, 15.0),
    Sketcher.Constraint("DistanceY", 1, 2, 6, 2, 34.0),
    Sketcher.Constraint("DistanceY", 0, 2, 9, 2, 40.0),
    Sketcher.Constraint("DistanceX", 0, 2, 3, 2, 76.5),
    Sketcher.Constraint("DistanceX", 0, 2, -1, 1, 75.0),
    Sketcher.Constraint("DistanceY", -1, 1, 0, 2, 93.5),
])
pad4 = body.newObject("PartDesign::Pad", "Pad003")
pad4.Profile = sketch4
pad4.Length = 3
pad4.Reversed = True

sketch5 = body.newObject("Sketcher::SketchObject", "Sketch004")
sketch5.AttachmentSupport = (doc.getObject("XY_Plane"), [""])
sketch5.MapMode = "FlatFace"
sketch5.AttachmentOffset = App.Placement(Vector(0, 0, 3), App.Rotation())
sketch5.addGeometry([
    Part.LineSegment(Vector(-68.25, 133.5, 0), Vector(-48.25, 133.5, 0)),
    Part.LineSegment(Vector(-48.25, 133.5, 0), Vector(-48.25, 136.5, 0)),
    Part.LineSegment(Vector(-48.25, 136.5, 0), Vector(-68.25, 136.5, 0)),
    Part.LineSegment(Vector(-68.25, 136.5, 0), Vector(-68.25, 133.5, 0)),
    Part.LineSegment(Vector(-28.25, 133.5, 0), Vector(-8.25, 133.5, 0)),
    Part.LineSegment(Vector(-8.25, 133.5, 0), Vector(-8.25, 136.5, 0)),
    Part.LineSegment(Vector(-8.25, 136.5, 0), Vector(-28.25, 136.5, 0)),
    Part.LineSegment(Vector(-28.25, 136.5, 0), Vector(-28.25, 133.5, 0)),
], False)
sketch5.addConstraint([
    Sketcher.Constraint("Coincident", 0, 2, 1, 1),
    Sketcher.Constraint("Coincident", 1, 2, 2, 1),
    Sketcher.Constraint("Coincident", 2, 2, 3, 1),
    Sketcher.Constraint("Coincident", 3, 2, 0, 1),
    Sketcher.Constraint("Coincident", 4, 2, 5, 1),
    Sketcher.Constraint("Coincident", 5, 2, 6, 1),
    Sketcher.Constraint("Coincident", 6, 2, 7, 1),
    Sketcher.Constraint("Coincident", 7, 2, 4, 1),
    Sketcher.Constraint("Horizontal", 0),
    Sketcher.Constraint("Vertical", 1),
    Sketcher.Constraint("Horizontal", 2),
    Sketcher.Constraint("Vertical", 3),
    Sketcher.Constraint("Horizontal", 4),
    Sketcher.Constraint("Vertical", 5),
    Sketcher.Constraint("Horizontal", 6),
    Sketcher.Constraint("Vertical", 7),
    Sketcher.Constraint("Horizontal", 3, 2, 4, 2),
    Sketcher.Constraint("Horizontal", 2, 2, 5, 2),
    Sketcher.Constraint("Equal", 2, 4),
    Sketcher.Constraint("DistanceX", 0, 1, 0, 2, 20.0),
    Sketcher.Constraint("DistanceY", 1, 1, 1, 2, 3.0),
    Sketcher.Constraint("DistanceX", 0, 2, 4, 2, 40.0),
    Sketcher.Constraint("DistanceY", -1, 1, 0, 2, 133.5),
    Sketcher.Constraint("DistanceX", 0, 2, -1, 1, 48.25),
])
pad5 = body.newObject("PartDesign::Pad", "Pad004")
pad5.Profile = sketch5
pad5.Length = 3
pad5.Reversed = True

sketch6 = body.newObject("Sketcher::SketchObject", "Sketch005")
sketch6.AttachmentSupport = (doc.getObject("XY_Plane"), [""])
sketch6.MapMode = "FlatFace"
sketch6.AttachmentOffset = App.Placement(Vector(0, 0, 3), App.Rotation())
sketch6.addGeometry([
    Part.LineSegment(Vector(67.5, 93.5, 0), Vector(67.5, 90.5, 0)),
    Part.LineSegment(Vector(67.5, 90.5, 0), Vector(75, 90.5, 0)),
    Part.LineSegment(Vector(75, 90.5, 0), Vector(75, -90.5, 0)),
    Part.LineSegment(Vector(75, -90.5, 0), Vector(67.5, -90.5, 0)),
    Part.LineSegment(Vector(67.5, -90.5, 0), Vector(67.5, -93.5, 0)),
    Part.LineSegment(Vector(67.5, -93.5, 0), Vector(82.5, -93.5, 0)),
    Part.LineSegment(Vector(82.5, -93.5, 0), Vector(82.5, -90.5, 0)),
    Part.LineSegment(Vector(82.5, -90.5, 0), Vector(85, -90.5, 0)),
    Part.LineSegment(Vector(85, -90.5, 0), Vector(85, 90.5, 0)),
    Part.LineSegment(Vector(85, 90.5, 0), Vector(82.5, 90.5, 0)),
    Part.LineSegment(Vector(82.5, 90.5, 0), Vector(82.5, 93.5, 0)),
    Part.LineSegment(Vector(82.5, 93.5, 0), Vector(67.5, 93.5, 0)),
], False)
sketch6.addConstraint([
    Sketcher.Constraint("Coincident", 0, 2, 1, 1),
    Sketcher.Constraint("Coincident", 1, 2, 2, 1),
    Sketcher.Constraint("Coincident", 2, 2, 3, 1),
    Sketcher.Constraint("Coincident", 3, 2, 4, 1),
    Sketcher.Constraint("Coincident", 4, 2, 5, 1),
    Sketcher.Constraint("Coincident", 5, 2, 6, 1),
    Sketcher.Constraint("Coincident", 6, 2, 7, 1),
    Sketcher.Constraint("Coincident", 7, 2, 8, 1),
    Sketcher.Constraint("Coincident", 8, 2, 9, 1),
    Sketcher.Constraint("Coincident", 9, 2, 10, 1),
    Sketcher.Constraint("Coincident", 10, 2, 11, 1),
    Sketcher.Constraint("Coincident", 11, 2, 0, 1),
    Sketcher.Constraint("Vertical", 0),
    Sketcher.Constraint("Horizontal", 1),
    Sketcher.Constraint("Vertical", 2),
    Sketcher.Constraint("Horizontal", 3),
    Sketcher.Constraint("Vertical", 4),
    Sketcher.Constraint("Horizontal", 5),
    Sketcher.Constraint("Vertical", 6),
    Sketcher.Constraint("Horizontal", 7),
    Sketcher.Constraint("Vertical", 8),
    Sketcher.Constraint("Horizontal", 9),
    Sketcher.Constraint("Vertical", 10),
    Sketcher.Constraint("Horizontal", 11),
    Sketcher.Constraint("Symmetric", 0, 2, 3, 2, -1),
    Sketcher.Constraint("Symmetric", 6, 2, 9, 2, -1),
    Sketcher.Constraint("Horizontal", 3, 2, 6, 2),
    Sketcher.Constraint("Equal", 0, 4),
    Sketcher.Constraint("DistanceX", 5, 1, 5, 2, 15.0),
    Sketcher.Constraint("DistanceY", 0, 2, 0, 1, 3.0),
    Sketcher.Constraint("DistanceX", 1, 1, 1, 2, 7.5),
    Sketcher.Constraint("DistanceY", 4, 2, 0, 2, 184.0),
    Sketcher.Constraint("DistanceX", 2, 2, 7, 2, 10.0),
    Sketcher.Constraint("DistanceX", -1, 1, 1, 2, 75.0),
])
pad6 = body.newObject("PartDesign::Pad", "Pad005")
pad6.Profile = sketch6
pad6.Length = 3
pad6.Reversed = True

sketch7 = body.newObject("Sketcher::SketchObject", "Sketch006")
sketch7.AttachmentSupport = (doc.getObject("XY_Plane"), [""])
sketch7.MapMode = "FlatFace"
sketch7.AttachmentOffset = App.Placement(Vector(0, 0, 3), App.Rotation())
sketch7.addGeometry([
    Part.Circle(Vector(-71.5, -86, 0), Vector(0, 0, 1), 1.5),
    Part.Circle(Vector(81.5, -86, 0), Vector(0, 0, 1), 1.5),
], False)
sketch7.addConstraint([
    Sketcher.Constraint("Equal", 0, 1),
    Sketcher.Constraint("Horizontal", 0, 3, 1, 3),
    Sketcher.Constraint("Diameter", 0, 3.0),
    Sketcher.Constraint("DistanceY", 0, 3, -1, 1, 86.0),
    Sketcher.Constraint("DistanceX", 0, 3, 1, 3, 153.0),
    Sketcher.Constraint("DistanceX", 0, 3, -1, 1, 71.5),
])
pocket1 = body.newObject("PartDesign::Pocket", "Pocket")
pocket1.Profile = sketch7
pocket1.Length = 10

sketch8 = body.newObject("Sketcher::SketchObject", "Sketch007")
sketch8.AttachmentSupport = (doc.getObject("XY_Plane"), [""])
sketch8.MapMode = "FlatFace"
sketch8.AttachmentOffset = App.Placement(Vector(0, 0, 3), App.Rotation())
sketch8.addGeometry([
    Part.Circle(Vector(75.5, 81, 0), Vector(0, 0, 1), 2),
    Part.Circle(Vector(-11, 124, 0), Vector(0, 0, 1), 2),
], False)
sketch8.addConstraint([
    Sketcher.Constraint("Equal", 0, 1),
    Sketcher.Constraint("Diameter", 0, 4.0),
    Sketcher.Constraint("DistanceY", -1, 1, 0, 3, 81.0),
    Sketcher.Constraint("DistanceX", 1, 3, -1, 1, 11.0),
    Sketcher.Constraint("DistanceY", -1, 1, 1, 3, 124.0),
    Sketcher.Constraint("DistanceX", -1, 1, 0, 3, 75.5),
])
pocket2 = body.newObject("PartDesign::Pocket", "Pocket001")
pocket2.Profile = sketch8
pocket2.Length = 10

doc.recompute()
